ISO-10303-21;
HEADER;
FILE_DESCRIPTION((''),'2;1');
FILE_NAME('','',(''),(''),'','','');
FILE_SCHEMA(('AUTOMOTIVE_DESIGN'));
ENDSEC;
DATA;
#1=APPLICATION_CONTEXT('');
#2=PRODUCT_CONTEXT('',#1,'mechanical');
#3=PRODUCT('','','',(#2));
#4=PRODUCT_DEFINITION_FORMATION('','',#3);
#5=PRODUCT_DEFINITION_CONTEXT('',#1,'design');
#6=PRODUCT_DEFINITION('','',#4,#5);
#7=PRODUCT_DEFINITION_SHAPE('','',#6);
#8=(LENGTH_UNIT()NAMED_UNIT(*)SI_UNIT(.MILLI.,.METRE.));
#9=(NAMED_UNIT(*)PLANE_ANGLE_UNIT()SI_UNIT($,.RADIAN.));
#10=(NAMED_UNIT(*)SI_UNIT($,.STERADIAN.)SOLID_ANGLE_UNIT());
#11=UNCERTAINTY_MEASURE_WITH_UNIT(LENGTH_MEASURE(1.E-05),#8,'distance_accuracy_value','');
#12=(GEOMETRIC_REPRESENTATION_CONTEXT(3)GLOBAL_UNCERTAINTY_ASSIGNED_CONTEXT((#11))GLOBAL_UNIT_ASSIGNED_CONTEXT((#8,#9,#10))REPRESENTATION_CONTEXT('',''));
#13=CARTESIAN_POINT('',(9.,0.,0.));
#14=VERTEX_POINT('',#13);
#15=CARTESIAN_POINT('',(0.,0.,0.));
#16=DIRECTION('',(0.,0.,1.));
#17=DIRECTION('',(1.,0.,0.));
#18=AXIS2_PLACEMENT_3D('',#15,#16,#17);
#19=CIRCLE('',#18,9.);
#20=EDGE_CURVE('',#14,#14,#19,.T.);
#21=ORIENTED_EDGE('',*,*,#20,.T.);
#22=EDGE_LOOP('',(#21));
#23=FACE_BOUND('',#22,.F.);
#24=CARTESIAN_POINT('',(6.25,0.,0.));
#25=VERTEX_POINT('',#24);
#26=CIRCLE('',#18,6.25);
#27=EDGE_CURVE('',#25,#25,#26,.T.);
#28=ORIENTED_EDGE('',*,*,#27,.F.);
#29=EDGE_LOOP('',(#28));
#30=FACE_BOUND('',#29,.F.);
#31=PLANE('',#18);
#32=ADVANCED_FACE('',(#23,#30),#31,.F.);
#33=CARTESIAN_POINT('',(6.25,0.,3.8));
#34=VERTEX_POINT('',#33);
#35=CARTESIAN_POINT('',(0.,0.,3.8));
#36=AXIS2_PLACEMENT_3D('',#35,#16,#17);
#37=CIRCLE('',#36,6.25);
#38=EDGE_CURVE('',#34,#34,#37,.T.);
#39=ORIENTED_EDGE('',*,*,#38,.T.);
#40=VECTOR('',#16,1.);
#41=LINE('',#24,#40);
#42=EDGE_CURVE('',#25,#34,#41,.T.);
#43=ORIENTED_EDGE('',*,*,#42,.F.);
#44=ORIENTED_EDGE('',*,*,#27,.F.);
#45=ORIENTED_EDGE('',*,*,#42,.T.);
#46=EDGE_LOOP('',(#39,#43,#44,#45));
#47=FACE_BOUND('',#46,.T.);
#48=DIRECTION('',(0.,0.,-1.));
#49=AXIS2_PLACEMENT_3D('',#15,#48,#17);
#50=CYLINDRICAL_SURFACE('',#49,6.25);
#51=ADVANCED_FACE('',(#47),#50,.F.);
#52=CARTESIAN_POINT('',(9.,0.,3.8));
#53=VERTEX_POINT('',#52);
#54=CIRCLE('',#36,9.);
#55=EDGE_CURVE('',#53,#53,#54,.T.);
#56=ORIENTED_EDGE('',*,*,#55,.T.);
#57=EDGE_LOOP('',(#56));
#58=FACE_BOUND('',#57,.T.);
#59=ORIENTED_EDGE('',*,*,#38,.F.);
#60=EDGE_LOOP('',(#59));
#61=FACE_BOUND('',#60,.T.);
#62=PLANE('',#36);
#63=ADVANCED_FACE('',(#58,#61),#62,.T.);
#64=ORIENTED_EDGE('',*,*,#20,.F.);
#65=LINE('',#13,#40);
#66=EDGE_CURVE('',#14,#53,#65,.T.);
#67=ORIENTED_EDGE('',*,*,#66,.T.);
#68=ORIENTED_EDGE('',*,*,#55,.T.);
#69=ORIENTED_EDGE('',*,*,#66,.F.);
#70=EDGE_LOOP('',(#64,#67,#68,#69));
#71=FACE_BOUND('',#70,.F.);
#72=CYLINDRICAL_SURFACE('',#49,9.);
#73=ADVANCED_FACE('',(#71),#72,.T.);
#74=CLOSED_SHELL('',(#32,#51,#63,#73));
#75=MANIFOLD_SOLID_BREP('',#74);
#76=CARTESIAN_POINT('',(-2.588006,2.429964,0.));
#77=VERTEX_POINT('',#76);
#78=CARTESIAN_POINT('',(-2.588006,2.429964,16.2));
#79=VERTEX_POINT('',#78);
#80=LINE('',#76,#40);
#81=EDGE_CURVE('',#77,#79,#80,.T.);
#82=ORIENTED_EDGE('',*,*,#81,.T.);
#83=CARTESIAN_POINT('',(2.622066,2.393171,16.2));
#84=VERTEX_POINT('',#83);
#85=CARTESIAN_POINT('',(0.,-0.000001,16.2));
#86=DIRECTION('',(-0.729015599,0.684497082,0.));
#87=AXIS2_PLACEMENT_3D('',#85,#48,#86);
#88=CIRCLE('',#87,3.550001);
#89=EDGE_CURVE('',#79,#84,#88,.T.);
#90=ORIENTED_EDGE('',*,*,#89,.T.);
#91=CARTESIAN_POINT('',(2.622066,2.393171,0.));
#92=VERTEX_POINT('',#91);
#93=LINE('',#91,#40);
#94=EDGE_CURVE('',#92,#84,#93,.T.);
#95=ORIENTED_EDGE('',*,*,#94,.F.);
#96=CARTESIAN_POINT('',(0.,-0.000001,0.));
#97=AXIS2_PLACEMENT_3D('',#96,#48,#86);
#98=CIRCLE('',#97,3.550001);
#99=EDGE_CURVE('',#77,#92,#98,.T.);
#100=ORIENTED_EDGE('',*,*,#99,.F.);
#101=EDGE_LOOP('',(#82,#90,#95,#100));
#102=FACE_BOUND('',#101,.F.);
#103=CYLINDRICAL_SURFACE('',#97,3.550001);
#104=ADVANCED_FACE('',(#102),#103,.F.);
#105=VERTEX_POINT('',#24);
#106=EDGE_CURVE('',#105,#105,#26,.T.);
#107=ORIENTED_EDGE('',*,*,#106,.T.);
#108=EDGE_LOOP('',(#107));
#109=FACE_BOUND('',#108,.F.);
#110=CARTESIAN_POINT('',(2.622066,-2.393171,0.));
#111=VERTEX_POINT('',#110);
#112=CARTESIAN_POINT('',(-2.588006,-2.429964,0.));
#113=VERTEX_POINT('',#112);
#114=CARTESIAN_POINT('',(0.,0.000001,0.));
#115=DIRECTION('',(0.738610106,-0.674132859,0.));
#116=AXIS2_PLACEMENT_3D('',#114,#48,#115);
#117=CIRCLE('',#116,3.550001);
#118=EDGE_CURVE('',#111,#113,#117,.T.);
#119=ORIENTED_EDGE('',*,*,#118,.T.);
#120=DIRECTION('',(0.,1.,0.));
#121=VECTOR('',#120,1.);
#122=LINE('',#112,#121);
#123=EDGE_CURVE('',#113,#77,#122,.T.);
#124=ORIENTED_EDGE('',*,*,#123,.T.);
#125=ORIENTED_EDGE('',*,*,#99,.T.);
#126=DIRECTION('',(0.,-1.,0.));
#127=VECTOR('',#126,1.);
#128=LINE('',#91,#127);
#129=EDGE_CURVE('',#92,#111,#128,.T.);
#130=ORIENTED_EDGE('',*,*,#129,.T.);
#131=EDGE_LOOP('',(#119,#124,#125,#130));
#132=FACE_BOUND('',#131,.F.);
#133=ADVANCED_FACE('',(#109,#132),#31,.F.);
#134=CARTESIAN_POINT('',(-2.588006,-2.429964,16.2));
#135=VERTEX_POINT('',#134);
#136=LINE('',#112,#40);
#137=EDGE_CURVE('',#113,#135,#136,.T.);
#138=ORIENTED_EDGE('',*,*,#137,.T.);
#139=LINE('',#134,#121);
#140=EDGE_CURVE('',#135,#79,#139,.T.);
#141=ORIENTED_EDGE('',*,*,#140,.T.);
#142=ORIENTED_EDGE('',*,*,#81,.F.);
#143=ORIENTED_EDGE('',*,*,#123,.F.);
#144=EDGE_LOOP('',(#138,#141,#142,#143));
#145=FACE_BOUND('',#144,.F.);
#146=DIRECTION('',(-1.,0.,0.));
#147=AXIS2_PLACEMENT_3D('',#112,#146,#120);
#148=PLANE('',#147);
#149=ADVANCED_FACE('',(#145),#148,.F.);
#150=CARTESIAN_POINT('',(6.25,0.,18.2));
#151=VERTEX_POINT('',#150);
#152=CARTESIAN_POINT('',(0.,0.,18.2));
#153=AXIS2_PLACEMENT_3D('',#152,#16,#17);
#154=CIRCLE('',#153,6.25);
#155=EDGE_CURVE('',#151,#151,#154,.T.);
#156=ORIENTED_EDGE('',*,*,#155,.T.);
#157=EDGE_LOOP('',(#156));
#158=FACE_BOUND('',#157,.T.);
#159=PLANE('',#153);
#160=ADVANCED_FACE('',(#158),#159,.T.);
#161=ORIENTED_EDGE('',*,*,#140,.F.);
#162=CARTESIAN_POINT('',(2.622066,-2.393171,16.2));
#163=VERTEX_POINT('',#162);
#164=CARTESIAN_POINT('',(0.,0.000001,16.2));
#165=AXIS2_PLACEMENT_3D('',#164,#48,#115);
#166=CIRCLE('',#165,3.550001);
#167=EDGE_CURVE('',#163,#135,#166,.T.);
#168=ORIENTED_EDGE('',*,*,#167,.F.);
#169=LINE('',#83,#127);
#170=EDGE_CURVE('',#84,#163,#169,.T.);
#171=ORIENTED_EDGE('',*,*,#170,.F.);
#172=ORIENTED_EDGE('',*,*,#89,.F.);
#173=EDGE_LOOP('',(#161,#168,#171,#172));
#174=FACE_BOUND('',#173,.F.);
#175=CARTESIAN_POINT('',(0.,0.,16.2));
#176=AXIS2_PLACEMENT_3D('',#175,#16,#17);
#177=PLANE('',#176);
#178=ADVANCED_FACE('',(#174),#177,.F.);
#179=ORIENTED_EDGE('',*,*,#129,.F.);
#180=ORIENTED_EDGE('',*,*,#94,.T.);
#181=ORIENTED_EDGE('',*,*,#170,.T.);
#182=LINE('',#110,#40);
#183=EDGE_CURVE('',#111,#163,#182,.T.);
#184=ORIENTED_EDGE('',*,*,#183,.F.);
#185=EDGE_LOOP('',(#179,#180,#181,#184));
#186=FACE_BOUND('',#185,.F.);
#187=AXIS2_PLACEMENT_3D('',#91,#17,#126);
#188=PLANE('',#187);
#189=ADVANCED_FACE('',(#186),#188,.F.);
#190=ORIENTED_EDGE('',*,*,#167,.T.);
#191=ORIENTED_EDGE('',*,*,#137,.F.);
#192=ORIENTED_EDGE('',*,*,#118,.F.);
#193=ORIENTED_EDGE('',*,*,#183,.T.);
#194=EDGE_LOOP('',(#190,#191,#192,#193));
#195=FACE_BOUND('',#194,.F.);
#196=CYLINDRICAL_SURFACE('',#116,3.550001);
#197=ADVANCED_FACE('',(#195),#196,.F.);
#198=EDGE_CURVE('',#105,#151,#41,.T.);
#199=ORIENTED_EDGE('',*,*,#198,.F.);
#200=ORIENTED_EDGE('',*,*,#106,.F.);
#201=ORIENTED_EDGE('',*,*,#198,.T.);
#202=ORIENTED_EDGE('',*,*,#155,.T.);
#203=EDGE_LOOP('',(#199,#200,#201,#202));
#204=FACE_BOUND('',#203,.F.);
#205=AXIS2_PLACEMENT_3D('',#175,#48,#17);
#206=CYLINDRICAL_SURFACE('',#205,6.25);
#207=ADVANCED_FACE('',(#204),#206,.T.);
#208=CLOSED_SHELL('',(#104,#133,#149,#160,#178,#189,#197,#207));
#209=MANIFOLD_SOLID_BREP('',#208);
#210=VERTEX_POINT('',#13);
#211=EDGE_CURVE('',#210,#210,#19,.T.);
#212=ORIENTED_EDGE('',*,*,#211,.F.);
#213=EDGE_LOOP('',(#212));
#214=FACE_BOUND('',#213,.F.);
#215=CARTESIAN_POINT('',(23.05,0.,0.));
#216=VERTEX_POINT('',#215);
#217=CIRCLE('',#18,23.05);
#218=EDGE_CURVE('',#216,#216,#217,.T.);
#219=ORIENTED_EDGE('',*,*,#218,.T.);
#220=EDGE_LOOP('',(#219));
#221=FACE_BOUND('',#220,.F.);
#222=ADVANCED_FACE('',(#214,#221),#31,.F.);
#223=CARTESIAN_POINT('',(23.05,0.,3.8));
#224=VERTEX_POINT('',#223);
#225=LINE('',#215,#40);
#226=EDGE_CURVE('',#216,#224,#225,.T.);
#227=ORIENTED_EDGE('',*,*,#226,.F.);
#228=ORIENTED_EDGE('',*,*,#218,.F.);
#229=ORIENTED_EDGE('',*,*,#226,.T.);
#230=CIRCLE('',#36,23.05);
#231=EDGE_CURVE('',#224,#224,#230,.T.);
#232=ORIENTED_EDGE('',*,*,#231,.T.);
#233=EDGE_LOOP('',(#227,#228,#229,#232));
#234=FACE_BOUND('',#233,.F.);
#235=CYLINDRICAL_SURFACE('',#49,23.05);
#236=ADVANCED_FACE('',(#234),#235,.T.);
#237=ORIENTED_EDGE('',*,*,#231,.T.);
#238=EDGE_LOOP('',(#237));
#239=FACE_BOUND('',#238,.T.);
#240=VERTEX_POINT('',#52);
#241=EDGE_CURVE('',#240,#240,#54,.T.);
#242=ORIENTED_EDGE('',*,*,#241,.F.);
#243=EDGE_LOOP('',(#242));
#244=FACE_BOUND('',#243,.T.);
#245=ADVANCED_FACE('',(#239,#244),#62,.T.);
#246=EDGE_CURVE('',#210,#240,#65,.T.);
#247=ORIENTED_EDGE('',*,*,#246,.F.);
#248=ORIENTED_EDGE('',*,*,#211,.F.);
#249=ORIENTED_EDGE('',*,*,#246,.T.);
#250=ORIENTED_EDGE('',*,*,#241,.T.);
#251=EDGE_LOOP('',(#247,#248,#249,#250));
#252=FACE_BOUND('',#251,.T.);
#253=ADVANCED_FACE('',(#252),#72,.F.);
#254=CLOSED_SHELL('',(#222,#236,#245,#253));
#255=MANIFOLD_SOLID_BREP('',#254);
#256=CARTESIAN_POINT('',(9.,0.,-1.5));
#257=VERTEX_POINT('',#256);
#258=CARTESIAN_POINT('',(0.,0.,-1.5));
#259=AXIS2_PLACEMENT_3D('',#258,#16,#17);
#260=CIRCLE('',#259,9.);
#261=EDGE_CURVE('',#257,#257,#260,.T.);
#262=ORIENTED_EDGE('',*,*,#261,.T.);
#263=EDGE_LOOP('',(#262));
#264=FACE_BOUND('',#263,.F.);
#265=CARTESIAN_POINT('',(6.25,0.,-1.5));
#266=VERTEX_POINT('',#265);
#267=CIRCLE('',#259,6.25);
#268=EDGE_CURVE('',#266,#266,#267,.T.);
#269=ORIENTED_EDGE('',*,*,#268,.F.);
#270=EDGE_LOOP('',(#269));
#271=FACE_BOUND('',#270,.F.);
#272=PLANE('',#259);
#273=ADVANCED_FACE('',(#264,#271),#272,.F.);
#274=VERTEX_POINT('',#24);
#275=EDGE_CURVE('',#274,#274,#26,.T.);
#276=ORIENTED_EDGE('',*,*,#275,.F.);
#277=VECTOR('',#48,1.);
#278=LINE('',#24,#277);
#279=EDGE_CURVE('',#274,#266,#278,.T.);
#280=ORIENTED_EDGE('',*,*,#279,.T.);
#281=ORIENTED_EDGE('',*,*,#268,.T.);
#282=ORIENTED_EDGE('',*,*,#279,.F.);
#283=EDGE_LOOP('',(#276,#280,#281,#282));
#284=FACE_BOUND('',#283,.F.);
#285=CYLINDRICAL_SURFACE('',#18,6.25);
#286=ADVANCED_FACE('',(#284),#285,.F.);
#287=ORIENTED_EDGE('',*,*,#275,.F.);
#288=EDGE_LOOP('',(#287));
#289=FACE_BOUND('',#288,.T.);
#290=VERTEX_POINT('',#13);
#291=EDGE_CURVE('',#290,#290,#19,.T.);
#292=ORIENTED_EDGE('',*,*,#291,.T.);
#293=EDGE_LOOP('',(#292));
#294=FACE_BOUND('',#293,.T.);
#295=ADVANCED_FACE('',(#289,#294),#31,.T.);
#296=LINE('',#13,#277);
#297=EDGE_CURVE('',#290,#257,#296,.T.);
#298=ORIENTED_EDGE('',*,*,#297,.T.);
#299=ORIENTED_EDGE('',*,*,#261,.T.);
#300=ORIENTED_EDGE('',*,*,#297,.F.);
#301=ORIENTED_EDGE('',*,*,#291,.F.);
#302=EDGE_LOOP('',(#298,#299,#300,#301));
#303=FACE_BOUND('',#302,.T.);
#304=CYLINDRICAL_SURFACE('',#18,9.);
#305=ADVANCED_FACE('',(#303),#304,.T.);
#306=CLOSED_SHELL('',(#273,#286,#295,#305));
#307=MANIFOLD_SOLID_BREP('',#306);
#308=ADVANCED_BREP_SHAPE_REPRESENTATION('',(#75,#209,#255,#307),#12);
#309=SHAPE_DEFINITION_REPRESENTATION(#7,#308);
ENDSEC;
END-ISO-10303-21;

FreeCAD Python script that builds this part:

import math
import FreeCAD as App
import Part
import Sketcher
from FreeCAD import Vector

doc = App.newDocument("Part")
body = doc.addObject("PartDesign::Body", "Body")

# Sketch on XY plane
sketch1 = body.newObject("Sketcher::SketchObject", "Sketch")
sketch1.AttachmentSupport = (doc.getObject("XY_Plane"), [""])
sketch1.MapMode = "FlatFace"
sketch1.addGeometry([
    Part.Circle(Vector(0, 0, 0), Vector(0, 0, 1), 6.25),  # 0
    Part.LineSegment(Vector(2.622066, 2.393171, 0), Vector(2.622066, -2.393171, 0)),  # 1
    Part.ArcOfCircle(Part.Circle(Vector(0, 0.000001, 0), Vector(0, 0, 1), 3.550001), math.radians(-136.803932), math.radians(-42.386848)),  # 2
    Part.LineSegment(Vector(-2.588006, -2.429964, 0), Vector(-2.588006, 2.429964, 0)),  # 3
    Part.ArcOfCircle(Part.Circle(Vector(0, -0.000001, 0), Vector(0, 0, 1), 3.550001), math.radians(42.386848), math.radians(136.803932)),  # 4
], False)
sketch1.addConstraint([
    Sketcher.Constraint("Coincident", 1, 2, 2, 2),
    Sketcher.Constraint("Coincident", 2, 1, 3, 1),
    Sketcher.Constraint("Coincident", 3, 2, 4, 2),
    Sketcher.Constraint("Coincident", 4, 1, 1, 1),
    Sketcher.Constraint("Vertical", 1),
    Sketcher.Constraint("Vertical", 3),
    Sketcher.Constraint("Coincident", 0, 3, -1, 1),
    Sketcher.Constraint("Coincident", 2, 3, -1, 1),
    Sketcher.Constraint("Coincident", 4, 3, -1, 1),
    Sketcher.Constraint("Equal", 2, 4),
    Sketcher.Constraint("Diameter", 0, 12.5),
    Sketcher.Constraint("Radius", 2, 3.550001),
    Sketcher.Constraint("DistanceY", 1, 2, 1, 1, 4.786342),
    Sketcher.Constraint("DistanceY", 3, 1, 3, 2, 4.859928),
])
pad1 = body.newObject("PartDesign::Pad", "Pad")
pad1.Profile = sketch1
pad1.Length = 16.2

# Sketch on XY plane
sketch2 = body.newObject("Sketcher::SketchObject", "Sketch001")
sketch2.AttachmentSupport = (doc.getObject("XY_Plane"), [""])
sketch2.MapMode = "FlatFace"
sketch2.AttachmentOffset = App.Placement(Vector(0, 0, 16.2), App.Rotation())
sketch2.addGeometry(Part.Circle(Vector(0, 0, 0), Vector(0, 0, 1), 6.25), False)
sketch2.addConstraint([
    Sketcher.Constraint("Coincident", 0, 3, -1, 1),
    Sketcher.Constraint("Diameter", 0, 12.5),
])
pad2 = body.newObject("PartDesign::Pad", "Pad001")
pad2.Profile = sketch2
pad2.Length = 2
body2 = doc.addObject("PartDesign::Body", "Body001")

# Sketch on XY plane
sketch3 = body2.newObject("Sketcher::SketchObject", "Sketch002")
sketch3.AttachmentSupport = (doc.getObject("XY_Plane001"), [""])
sketch3.MapMode = "FlatFace"
sketch3.addGeometry([
    Part.Circle(Vector(0, 0, 0), Vector(0, 0, 1), 23.05),
    Part.Circle(Vector(0, 0, 0), Vector(0, 0, 1), 9),
], False)
sketch3.addConstraint([
    Sketcher.Constraint("Coincident", 0, 3, -1, 1),
    Sketcher.Constraint("Coincident", 1, 3, -1, 1),
    Sketcher.Constraint("Diameter", 1, 18.0),
    Sketcher.Constraint("Diameter", 0, 46.1),
])
pad3 = body2.newObject("PartDesign::Pad", "Pad002")
pad3.Profile = sketch3
pad3.Length = 3.8
body3 = doc.addObject("PartDesign::Body", "Body002")

# Sketch on XY plane
sketch4 = body3.newObject("Sketcher::SketchObject", "Sketch003")
sketch4.AttachmentSupport = (doc.getObject("XY_Plane002"), [""])
sketch4.MapMode = "FlatFace"
sketch4.addGeometry([
    Part.Circle(Vector(0, 0, 0), Vector(0, 0, 1), 9),
    Part.Circle(Vector(0, 0, 0), Vector(0, 0, 1), 6.25),
], False)
sketch4.addConstraint([
    Sketcher.Constraint("Coincident", 0, 3, -1, 1),
    Sketcher.Constraint("Coincident", 1, 3, -1, 1),
    Sketcher.Constraint("Diameter", 0, 18.0),
    Sketcher.Constraint("Diameter", 1, 12.5),
])
pad4 = body3.newObject("PartDesign::Pad", "Pad003")
pad4.Profile = sketch4
pad4.Length = 1.5
pad4.Reversed = True
body4 = doc.addObject("PartDesign::Body", "Body003")

# Sketch on XY plane
sketch5 = body4.newObject("Sketcher::SketchObject", "Sketch004")
sketch5.AttachmentSupport = (doc.getObject("XY_Plane003"), [""])
sketch5.MapMode = "FlatFace"
sketch5.addGeometry([
    Part.Circle(Vector(0, 0, 0), Vector(0, 0, 1), 9),
    Part.Circle(Vector(0, 0, 0), Vector(0, 0, 1), 6.25),
], False)
sketch5.addConstraint([
    Sketcher.Constraint("Coincident", 0, 3, -1, 1),
    Sketcher.Constraint("Coincident", 1, 3, -1, 1),
    Sketcher.Constraint("Diameter", 0, 18.0),
    Sketcher.Constraint("Diameter", 1, 12.5),
])
pad5 = body4.newObject("PartDesign::Pad", "Pad004")
pad5.Profile = sketch5
pad5.Length = 3.8

doc.recompute()
